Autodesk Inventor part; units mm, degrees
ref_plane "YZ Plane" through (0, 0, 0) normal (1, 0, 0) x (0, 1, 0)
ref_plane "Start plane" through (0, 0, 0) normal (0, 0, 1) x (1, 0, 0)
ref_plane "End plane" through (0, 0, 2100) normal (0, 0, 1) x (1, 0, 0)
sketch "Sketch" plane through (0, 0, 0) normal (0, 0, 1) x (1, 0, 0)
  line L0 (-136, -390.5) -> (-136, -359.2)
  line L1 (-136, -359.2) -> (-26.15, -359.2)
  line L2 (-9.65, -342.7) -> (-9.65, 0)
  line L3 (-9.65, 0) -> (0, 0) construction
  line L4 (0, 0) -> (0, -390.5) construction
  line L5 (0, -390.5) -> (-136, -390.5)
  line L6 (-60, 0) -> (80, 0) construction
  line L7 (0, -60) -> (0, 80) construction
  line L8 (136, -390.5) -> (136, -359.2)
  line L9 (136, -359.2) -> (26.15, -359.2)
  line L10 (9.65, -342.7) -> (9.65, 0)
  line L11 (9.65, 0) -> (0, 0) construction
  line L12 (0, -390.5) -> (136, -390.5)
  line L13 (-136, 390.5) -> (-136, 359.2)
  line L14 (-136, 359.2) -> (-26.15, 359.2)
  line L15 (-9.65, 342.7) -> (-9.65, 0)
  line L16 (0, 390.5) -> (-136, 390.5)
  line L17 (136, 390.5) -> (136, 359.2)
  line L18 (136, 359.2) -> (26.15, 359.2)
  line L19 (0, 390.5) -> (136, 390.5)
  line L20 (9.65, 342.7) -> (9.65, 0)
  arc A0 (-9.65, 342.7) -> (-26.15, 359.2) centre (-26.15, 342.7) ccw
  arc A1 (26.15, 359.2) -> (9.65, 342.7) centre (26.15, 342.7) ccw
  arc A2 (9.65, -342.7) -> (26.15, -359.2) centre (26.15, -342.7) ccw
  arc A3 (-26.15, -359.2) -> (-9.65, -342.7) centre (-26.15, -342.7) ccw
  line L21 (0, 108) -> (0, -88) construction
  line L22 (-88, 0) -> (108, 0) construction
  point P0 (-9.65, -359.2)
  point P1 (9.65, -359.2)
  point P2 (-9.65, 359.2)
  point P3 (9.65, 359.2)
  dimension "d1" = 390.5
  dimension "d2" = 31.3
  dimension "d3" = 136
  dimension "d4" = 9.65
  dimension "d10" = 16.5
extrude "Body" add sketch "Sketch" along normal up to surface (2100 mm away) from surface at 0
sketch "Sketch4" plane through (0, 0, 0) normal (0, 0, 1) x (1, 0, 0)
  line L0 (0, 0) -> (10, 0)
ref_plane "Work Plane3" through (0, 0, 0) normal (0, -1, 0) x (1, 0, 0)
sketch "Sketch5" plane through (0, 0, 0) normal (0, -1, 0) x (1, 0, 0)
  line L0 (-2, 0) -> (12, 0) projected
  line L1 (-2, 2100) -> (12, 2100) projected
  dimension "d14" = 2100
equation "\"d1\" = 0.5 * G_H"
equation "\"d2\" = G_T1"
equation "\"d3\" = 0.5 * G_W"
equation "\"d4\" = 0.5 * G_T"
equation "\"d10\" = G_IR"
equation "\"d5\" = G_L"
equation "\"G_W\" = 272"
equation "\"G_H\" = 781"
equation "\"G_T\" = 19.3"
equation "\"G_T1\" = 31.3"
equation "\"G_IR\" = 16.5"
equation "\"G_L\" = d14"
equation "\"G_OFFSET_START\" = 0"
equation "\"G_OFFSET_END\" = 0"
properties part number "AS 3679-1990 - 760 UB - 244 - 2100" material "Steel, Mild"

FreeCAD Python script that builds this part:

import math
import FreeCAD as App
import Part
import Sketcher

V = App.Vector

doc = App.newDocument("Part")
body = doc.addObject("PartDesign::Body", "Body")

# Sketch on XY plane
sketch1 = body.newObject("Sketcher::SketchObject", "Sketch")
sketch1.AttachmentSupport = (doc.getObject("XY_Plane"), [""])
sketch1.MapMode = "FlatFace"
sketch1.addGeometry(Part.LineSegment(V(-136, -359.2, 0), V(-136, -390.5, 0)), False)
sketch1.addGeometry(Part.LineSegment(V(-136, -390.5, 0), V(136, -390.5, 0)), False)
sketch1.addGeometry(Part.LineSegment(V(136, -390.5, 0), V(136, -359.2, 0)), False)
sketch1.addGeometry(Part.LineSegment(V(136, -359.2, 0), V(26.15, -359.2, 0)), False)
sketch1.addGeometry(Part.ArcOfCircle(Part.Circle(V(26.15, -342.7, 0), V(0, 0, 1), 16.5), math.radians(180), math.radians(270)), False)
sketch1.addGeometry(Part.LineSegment(V(9.65, -342.7, 0), V(9.65, 342.7, 0)), False)
sketch1.addGeometry(Part.ArcOfCircle(Part.Circle(V(26.15, 342.7, 0), V(0, 0, 1), 16.5), math.radians(90), math.radians(180)), False)
sketch1.addGeometry(Part.LineSegment(V(26.15, 359.2, 0), V(136, 359.2, 0)), False)
sketch1.addGeometry(Part.LineSegment(V(136, 359.2, 0), V(136, 390.5, 0)), False)
sketch1.addGeometry(Part.LineSegment(V(136, 390.5, 0), V(-136, 390.5, 0)), False)
sketch1.addGeometry(Part.LineSegment(V(-136, 390.5, 0), V(-136, 359.2, 0)), False)
sketch1.addGeometry(Part.LineSegment(V(-136, 359.2, 0), V(-26.15, 359.2, 0)), False)
sketch1.addGeometry(Part.ArcOfCircle(Part.Circle(V(-26.15, 342.7, 0), V(0, 0, 1), 16.5), math.radians(0), math.radians(90)), False)
sketch1.addGeometry(Part.LineSegment(V(-9.65, 342.7, 0), V(-9.65, -342.7, 0)), False)
sketch1.addGeometry(Part.ArcOfCircle(Part.Circle(V(-26.15, -342.7, 0), V(0, 0, 1), 16.5), math.radians(-90), math.radians(0)), False)
sketch1.addGeometry(Part.LineSegment(V(-26.15, -359.2, 0), V(-136, -359.2, 0)), False)
sketch1.addConstraint(Sketcher.Constraint("Coincident", 0, 2, 1, 1))
sketch1.addConstraint(Sketcher.Constraint("Coincident", 1, 2, 2, 1))
sketch1.addConstraint(Sketcher.Constraint("Coincident", 2, 2, 3, 1))
sketch1.addConstraint(Sketcher.Constraint("Tangent", 3, 2, 4, 2))
sketch1.addConstraint(Sketcher.Constraint("Tangent", 4, 1, 5, 1))
sketch1.addConstraint(Sketcher.Constraint("Tangent", 5, 2, 6, 2))
sketch1.addConstraint(Sketcher.Constraint("Tangent", 6, 1, 7, 1))
sketch1.addConstraint(Sketcher.Constraint("Coincident", 7, 2, 8, 1))
sketch1.addConstraint(Sketcher.Constraint("Coincident", 8, 2, 9, 1))
sketch1.addConstraint(Sketcher.Constraint("Coincident", 9, 2, 10, 1))
sketch1.addConstraint(Sketcher.Constraint("Coincident", 10, 2, 11, 1))
sketch1.addConstraint(Sketcher.Constraint("Tangent", 11, 2, 12, 2))
sketch1.addConstraint(Sketcher.Constraint("Tangent", 12, 1, 13, 1))
sketch1.addConstraint(Sketcher.Constraint("Tangent", 13, 2, 14, 2))
sketch1.addConstraint(Sketcher.Constraint("Tangent", 14, 1, 15, 1))
sketch1.addConstraint(Sketcher.Constraint("Coincident", 15, 2, 0, 1))
sketch1.addConstraint(Sketcher.Constraint("Vertical", 0))
sketch1.addConstraint(Sketcher.Constraint("Horizontal", 1))
sketch1.addConstraint(Sketcher.Constraint("Vertical", 2))
sketch1.addConstraint(Sketcher.Constraint("Horizontal", 3))
sketch1.addConstraint(Sketcher.Constraint("Vertical", 5))
sketch1.addConstraint(Sketcher.Constraint("Horizontal", 7))
sketch1.addConstraint(Sketcher.Constraint("Vertical", 8))
sketch1.addConstraint(Sketcher.Constraint("Horizontal", 9))
sketch1.addConstraint(Sketcher.Constraint("Vertical", 10))
sketch1.addConstraint(Sketcher.Constraint("Horizontal", 11))
sketch1.addConstraint(Sketcher.Constraint("Vertical", 13))
sketch1.addConstraint(Sketcher.Constraint("Horizontal", 15))
sketch1.addConstraint(Sketcher.Constraint("Equal", 4, 6))
sketch1.addConstraint(Sketcher.Constraint("Equal", 6, 12))
sketch1.addConstraint(Sketcher.Constraint("Equal", 12, 14))
sketch1.addConstraint(Sketcher.Constraint("Symmetric", 4, 3, 12, 3, -1, 1))
sketch1.addConstraint(Sketcher.Constraint("Symmetric", 0, 2, 8, 2, -1, 1))
sketch1.addConstraint(Sketcher.Constraint("Symmetric", 7, 2, 10, 2, -2))
sketch1.addConstraint(Sketcher.Constraint("Symmetric", 2, 2, 15, 2, -2))
sketch1.addConstraint(Sketcher.Constraint("Radius", 4, 16.5))
sketch1.addConstraint(Sketcher.Constraint("DistanceY", 0, 2, 0, 1, 31.3))
sketch1.addConstraint(Sketcher.Constraint("DistanceX", 0, 2, -1, 1, 136.0))
sketch1.addConstraint(Sketcher.Constraint("DistanceY", 0, 2, -1, 1, 390.5))
sketch1.addConstraint(Sketcher.Constraint("DistanceX", -1, 1, 4, 1, 9.65))
pad1 = body.newObject("PartDesign::Pad", "Pad")
pad1.Profile = sketch1
pad1.Length = 2100

doc.recompute()
